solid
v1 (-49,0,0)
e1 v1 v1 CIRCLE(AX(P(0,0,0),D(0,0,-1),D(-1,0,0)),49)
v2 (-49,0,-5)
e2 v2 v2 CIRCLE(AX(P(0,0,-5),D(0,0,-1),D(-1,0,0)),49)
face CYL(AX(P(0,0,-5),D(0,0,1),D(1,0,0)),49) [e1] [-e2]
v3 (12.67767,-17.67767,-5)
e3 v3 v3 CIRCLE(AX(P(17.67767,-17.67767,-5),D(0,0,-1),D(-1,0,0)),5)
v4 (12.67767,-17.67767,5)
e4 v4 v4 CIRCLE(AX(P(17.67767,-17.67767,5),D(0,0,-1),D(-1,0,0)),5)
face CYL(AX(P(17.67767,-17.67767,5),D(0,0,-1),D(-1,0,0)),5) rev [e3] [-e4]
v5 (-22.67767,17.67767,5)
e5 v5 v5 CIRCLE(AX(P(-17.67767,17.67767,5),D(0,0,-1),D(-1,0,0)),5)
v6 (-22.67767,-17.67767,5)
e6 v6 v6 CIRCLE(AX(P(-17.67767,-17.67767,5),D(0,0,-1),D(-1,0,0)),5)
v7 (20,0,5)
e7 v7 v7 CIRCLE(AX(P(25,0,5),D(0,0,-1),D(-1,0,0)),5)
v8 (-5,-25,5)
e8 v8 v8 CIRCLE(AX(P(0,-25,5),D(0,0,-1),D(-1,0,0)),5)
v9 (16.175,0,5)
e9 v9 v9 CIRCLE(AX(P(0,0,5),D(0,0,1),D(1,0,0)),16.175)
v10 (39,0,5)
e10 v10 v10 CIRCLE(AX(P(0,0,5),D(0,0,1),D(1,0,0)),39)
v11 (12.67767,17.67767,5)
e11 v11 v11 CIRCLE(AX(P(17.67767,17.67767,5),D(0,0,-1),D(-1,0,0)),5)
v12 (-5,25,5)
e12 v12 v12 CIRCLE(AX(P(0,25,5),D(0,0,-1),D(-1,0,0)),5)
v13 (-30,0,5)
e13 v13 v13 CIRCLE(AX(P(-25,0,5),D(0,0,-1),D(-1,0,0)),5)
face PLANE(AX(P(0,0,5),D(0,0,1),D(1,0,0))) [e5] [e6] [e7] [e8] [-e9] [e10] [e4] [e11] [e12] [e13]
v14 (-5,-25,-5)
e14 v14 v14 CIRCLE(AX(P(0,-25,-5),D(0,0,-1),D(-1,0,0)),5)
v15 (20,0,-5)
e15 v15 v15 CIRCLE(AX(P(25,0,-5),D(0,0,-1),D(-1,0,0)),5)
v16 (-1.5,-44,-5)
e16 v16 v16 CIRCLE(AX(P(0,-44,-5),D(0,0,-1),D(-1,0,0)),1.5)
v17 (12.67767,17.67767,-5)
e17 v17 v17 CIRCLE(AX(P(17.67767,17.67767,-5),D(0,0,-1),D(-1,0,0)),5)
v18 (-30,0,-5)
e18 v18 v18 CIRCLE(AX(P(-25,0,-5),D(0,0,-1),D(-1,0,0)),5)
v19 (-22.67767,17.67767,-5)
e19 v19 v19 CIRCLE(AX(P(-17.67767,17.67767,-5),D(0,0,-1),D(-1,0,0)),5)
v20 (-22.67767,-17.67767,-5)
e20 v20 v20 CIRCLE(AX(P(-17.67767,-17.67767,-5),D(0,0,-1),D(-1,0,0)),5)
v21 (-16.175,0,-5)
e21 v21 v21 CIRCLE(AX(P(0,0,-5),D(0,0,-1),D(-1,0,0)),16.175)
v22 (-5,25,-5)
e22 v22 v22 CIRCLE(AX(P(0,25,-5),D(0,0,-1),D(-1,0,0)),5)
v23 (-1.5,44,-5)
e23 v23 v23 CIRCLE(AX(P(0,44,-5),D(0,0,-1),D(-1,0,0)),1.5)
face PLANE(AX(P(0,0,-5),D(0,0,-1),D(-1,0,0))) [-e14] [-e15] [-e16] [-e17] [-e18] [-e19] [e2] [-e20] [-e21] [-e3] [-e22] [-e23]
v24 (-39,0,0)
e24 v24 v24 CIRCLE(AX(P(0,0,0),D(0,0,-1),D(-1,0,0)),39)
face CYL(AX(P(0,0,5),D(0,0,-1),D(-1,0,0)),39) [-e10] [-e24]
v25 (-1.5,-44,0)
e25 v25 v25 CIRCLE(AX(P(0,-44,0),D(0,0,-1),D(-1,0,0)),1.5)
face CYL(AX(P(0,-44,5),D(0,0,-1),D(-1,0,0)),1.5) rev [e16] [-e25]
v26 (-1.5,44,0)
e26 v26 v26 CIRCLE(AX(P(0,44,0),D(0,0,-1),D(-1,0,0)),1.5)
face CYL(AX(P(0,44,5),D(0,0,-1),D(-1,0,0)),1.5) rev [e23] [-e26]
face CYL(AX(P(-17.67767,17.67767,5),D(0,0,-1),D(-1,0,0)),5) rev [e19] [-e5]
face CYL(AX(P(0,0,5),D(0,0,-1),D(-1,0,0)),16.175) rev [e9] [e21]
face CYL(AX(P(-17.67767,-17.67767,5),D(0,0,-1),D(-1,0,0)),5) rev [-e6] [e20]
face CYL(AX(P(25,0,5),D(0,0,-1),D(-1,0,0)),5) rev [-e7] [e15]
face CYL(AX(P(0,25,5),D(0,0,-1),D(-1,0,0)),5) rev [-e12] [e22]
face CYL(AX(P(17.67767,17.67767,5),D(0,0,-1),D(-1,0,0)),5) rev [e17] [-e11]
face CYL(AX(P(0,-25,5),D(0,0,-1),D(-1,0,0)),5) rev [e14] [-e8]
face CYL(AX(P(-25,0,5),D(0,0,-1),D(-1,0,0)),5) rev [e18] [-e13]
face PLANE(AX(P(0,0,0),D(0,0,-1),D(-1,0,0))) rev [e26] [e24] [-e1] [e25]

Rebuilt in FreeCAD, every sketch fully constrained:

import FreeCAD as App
import Part
import Sketcher

doc = App.newDocument("Part")
body = doc.addObject("PartDesign::Body", "Body")

# Sketch on XY plane
sketch1 = body.newObject("Sketcher::SketchObject", "Sketch")
sketch1.AttachmentSupport = (doc.getObject("XY_Plane"), [""])
sketch1.MapMode = "FlatFace"
sketch1.addGeometry(Part.Circle(App.Vector(0, 0, 0), App.Vector(0, 0, 1), 39), False)
sketch1.addGeometry(Part.Circle(App.Vector(0, 0, 0), App.Vector(0, 0, 1), 16), False)
sketch1.addConstraint(Sketcher.Constraint("Coincident", 0, 3, -1, 1))
sketch1.addConstraint(Sketcher.Constraint("Coincident", 1, 3, -1, 1))
sketch1.addConstraint(Sketcher.Constraint("Diameter", 0, 78.0))
sketch1.addConstraint(Sketcher.Constraint("Diameter", 1, 32.35))
pad1 = body.newObject("PartDesign::Pad", "Pad")
pad1.Profile = sketch1
pad1.Length = 5

# Sketch on XY plane
sketch2 = body.newObject("Sketcher::SketchObject", "Sketch001")
sketch2.AttachmentSupport = (doc.getObject("XY_Plane"), [""])
sketch2.MapMode = "FlatFace"
sketch2.addGeometry(Part.Circle(App.Vector(0, 0, 0), App.Vector(0, 0, 1), 49), False)
sketch2.addConstraint(Sketcher.Constraint("Coincident", 0, 3, -1, 1))
sketch2.addConstraint(Sketcher.Constraint("Diameter", 0, 98.0))
pad2 = body.newObject("PartDesign::Pad", "Pad001")
pad2.Profile = sketch2
pad2.Length = 5
pad2.Reversed = True

# Sketch on XY plane
sketch3 = body.newObject("Sketcher::SketchObject", "Sketch002")
sketch3.AttachmentSupport = (doc.getObject("XY_Plane"), [""])
sketch3.MapMode = "FlatFace"
sketch3.AttachmentOffset = App.Placement(App.Vector(0, 0, -5), App.Rotation())
sketch3.addGeometry(Part.Circle(App.Vector(0, 0, 0), App.Vector(0, 0, 1), 16), False)
sketch3.addConstraint(Sketcher.Constraint("Coincident", 0, 3, -1, 1))
sketch3.addConstraint(Sketcher.Constraint("Diameter", 0, 32.35))
pocket1 = body.newObject("PartDesign::Pocket", "Pocket")
pocket1.Profile = sketch3
pocket1.Type = "ThroughAll"
pocket1.Reversed = True

# Sketch on XY plane
sketch4 = body.newObject("Sketcher::SketchObject", "Sketch003")
sketch4.AttachmentSupport = (doc.getObject("XY_Plane"), [""])
sketch4.MapMode = "FlatFace"
sketch4.AttachmentOffset = App.Placement(App.Vector(0, 0, -5), App.Rotation())
sketch4.addGeometry(Part.Circle(App.Vector(0, 44, 0), App.Vector(0, 0, 1), 1.5), False)
sketch4.addGeometry(Part.Circle(App.Vector(0, -44, 0), App.Vector(0, 0, 1), 1.5), False)
sketch4.addGeometry(Part.Circle(App.Vector(-25, 0, 0), App.Vector(0, 0, 1), 5), False)
sketch4.addGeometry(Part.Circle(App.Vector(0, 25, 0), App.Vector(0, 0, 1), 5), False)
sketch4.addGeometry(Part.Circle(App.Vector(25, 0, 0), App.Vector(0, 0, 1), 5), False)
sketch4.addGeometry(Part.Circle(App.Vector(0, -25, 0), App.Vector(0, 0, 1), 5), False)
sketch4.addGeometry(Part.Circle(App.Vector(17.7, -17.7, 0), App.Vector(0, 0, 1), 5), False)
sketch4.addGeometry(Part.Circle(App.Vector(-17.7, 17.7, 0), App.Vector(0, 0, 1), 5), False)
sketch4.addGeometry(Part.Circle(App.Vector(-17.7, -17.7, 0), App.Vector(0, 0, 1), 5), False)
sketch4.addGeometry(Part.Circle(App.Vector(17.7, 17.7, 0), App.Vector(0, 0, 1), 5), False)
sketch4.addConstraint(Sketcher.Constraint("Equal", 0, 1))
sketch4.addConstraint(Sketcher.Constraint("Equal", 2, 3))
sketch4.addConstraint(Sketcher.Constraint("Equal", 3, 4))
sketch4.addConstraint(Sketcher.Constraint("Equal", 4, 5))
sketch4.addConstraint(Sketcher.Constraint("Equal", 5, 6))
sketch4.addConstraint(Sketcher.Constraint("Equal", 6, 7))
sketch4.addConstraint(Sketcher.Constraint("Equal", 7, 8))
sketch4.addConstraint(Sketcher.Constraint("Equal", 8, 9))
sketch4.addConstraint(Sketcher.Constraint("Symmetric", 0, 3, 1, 3, -1, 1))
sketch4.addConstraint(Sketcher.Constraint("Symmetric", 2, 3, 4, 3, -1, 1))
sketch4.addConstraint(Sketcher.Constraint("Symmetric", 3, 3, 5, 3, -1, 1))
sketch4.addConstraint(Sketcher.Constraint("Symmetric", 6, 3, 7, 3, -1, 1))
sketch4.addConstraint(Sketcher.Constraint("Symmetric", 8, 3, 9, 3, -1, 1))
sketch4.addConstraint(Sketcher.Constraint("Symmetric", 6, 3, 8, 3, -2))
sketch4.addConstraint(Sketcher.Constraint("PointOnObject", 0, 3, -2))
sketch4.addConstraint(Sketcher.Constraint("PointOnObject", 2, 3, -1))
sketch4.addConstraint(Sketcher.Constraint("PointOnObject", 3, 3, -2))
sketch4.addConstraint(Sketcher.Constraint("Diameter", 0, 3.0))
sketch4.addConstraint(Sketcher.Constraint("Diameter", 2, 10.0))
sketch4.addConstraint(Sketcher.Constraint("DistanceY", -1, 1, 0, 3, 44.0))
sketch4.addConstraint(Sketcher.Constraint("DistanceX", 2, 3, -1, 1, 25.0))
sketch4.addConstraint(Sketcher.Constraint("DistanceY", -1, 1, 3, 3, 25.0))
sketch4.addConstraint(Sketcher.Constraint("DistanceX", -1, 1, 6, 3, 17.67767))
sketch4.addConstraint(Sketcher.Constraint("DistanceY", 6, 3, -1, 1, 17.67767))
pocket2 = body.newObject("PartDesign::Pocket", "Pocket001")
pocket2.Profile = sketch4
pocket2.Type = "ThroughAll"
pocket2.Reversed = True

doc.recompute()
